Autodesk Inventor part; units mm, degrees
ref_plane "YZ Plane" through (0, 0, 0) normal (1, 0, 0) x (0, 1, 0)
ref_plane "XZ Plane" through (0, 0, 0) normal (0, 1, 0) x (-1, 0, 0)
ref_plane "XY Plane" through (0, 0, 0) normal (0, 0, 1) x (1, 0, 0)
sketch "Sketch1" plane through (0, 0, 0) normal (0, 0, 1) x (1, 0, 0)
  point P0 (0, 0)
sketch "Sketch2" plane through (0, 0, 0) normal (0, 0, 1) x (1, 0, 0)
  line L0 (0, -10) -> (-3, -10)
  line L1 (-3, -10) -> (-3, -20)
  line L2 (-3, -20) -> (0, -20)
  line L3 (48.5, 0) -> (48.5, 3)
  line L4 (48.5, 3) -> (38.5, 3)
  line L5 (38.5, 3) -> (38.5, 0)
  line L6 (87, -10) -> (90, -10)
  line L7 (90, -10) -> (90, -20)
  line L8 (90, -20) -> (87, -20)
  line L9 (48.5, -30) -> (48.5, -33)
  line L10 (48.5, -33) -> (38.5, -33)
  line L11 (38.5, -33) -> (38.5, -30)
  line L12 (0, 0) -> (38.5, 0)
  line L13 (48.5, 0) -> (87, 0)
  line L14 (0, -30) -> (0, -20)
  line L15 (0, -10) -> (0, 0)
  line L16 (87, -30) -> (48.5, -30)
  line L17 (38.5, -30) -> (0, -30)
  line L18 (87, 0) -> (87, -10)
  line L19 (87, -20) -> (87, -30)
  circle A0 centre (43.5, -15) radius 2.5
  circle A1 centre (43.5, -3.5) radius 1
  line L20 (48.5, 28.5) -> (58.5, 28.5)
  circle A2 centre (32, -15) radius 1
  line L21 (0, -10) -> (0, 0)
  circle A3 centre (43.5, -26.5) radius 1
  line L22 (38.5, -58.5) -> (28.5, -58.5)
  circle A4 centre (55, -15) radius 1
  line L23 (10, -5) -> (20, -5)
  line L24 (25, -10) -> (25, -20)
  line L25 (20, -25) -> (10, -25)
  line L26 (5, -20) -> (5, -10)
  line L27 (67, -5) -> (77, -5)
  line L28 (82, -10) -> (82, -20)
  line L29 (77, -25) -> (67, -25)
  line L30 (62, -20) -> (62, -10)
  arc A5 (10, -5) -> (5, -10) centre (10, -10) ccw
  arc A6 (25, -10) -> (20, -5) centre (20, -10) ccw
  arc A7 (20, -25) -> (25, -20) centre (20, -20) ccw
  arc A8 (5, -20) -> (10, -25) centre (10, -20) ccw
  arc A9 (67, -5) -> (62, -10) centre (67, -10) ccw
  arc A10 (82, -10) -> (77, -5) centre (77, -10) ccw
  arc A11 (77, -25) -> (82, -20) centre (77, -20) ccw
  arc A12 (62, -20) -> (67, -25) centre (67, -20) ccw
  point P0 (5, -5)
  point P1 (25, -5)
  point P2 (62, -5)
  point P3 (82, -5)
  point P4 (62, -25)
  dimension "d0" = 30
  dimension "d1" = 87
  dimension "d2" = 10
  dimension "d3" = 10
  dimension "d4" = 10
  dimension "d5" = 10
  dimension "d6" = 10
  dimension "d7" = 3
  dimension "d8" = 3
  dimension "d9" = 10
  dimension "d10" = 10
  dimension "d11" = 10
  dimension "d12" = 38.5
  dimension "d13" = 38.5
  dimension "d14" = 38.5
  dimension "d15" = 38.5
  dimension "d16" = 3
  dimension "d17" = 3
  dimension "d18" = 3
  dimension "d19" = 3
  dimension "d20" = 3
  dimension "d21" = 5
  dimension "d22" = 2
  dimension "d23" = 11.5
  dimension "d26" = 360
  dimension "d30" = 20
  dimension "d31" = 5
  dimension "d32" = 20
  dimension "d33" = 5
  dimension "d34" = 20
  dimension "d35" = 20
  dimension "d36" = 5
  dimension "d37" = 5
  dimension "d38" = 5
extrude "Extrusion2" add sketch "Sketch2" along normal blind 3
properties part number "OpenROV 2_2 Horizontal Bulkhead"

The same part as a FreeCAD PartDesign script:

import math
import FreeCAD as App
import Part
import Sketcher

V = App.Vector

doc = App.newDocument("Part")
params = doc.addObject("Spreadsheet::Sheet", "Params")
for row, (alias, value) in enumerate([
    ("sketch1_diameter", "2 mm"),
    ("sketch1_diameter2", "5 mm"),
    ("sketch1_radius", "5 mm"),
    ("sketch1_width", "3 mm"),
    ("sketch1_width2", "10 mm"),
    ("pad1_length", "3 mm"),
], start=1):
    params.set(f"A{row}", alias)
    params.set(f"B{row}", "=" + value)
    params.setAlias(f"B{row}", alias)

body = doc.addObject("PartDesign::Body", "Body")

# Sketch on XY plane
sketch1 = body.newObject("Sketcher::SketchObject", "Sketch")
sketch1.AttachmentSupport = (doc.getObject("XY_Plane"), [""])
sketch1.MapMode = "FlatFace"
sketch1.addGeometry(Part.LineSegment(V(0, 0, 0), V(0, -10, 0)), False)
sketch1.addGeometry(Part.LineSegment(V(0, -10, 0), V(-3, -10, 0)), False)
sketch1.addGeometry(Part.LineSegment(V(-3, -10, 0), V(-3, -20, 0)), False)
sketch1.addGeometry(Part.LineSegment(V(-3, -20, 0), V(0, -20, 0)), False)
sketch1.addGeometry(Part.LineSegment(V(0, -20, 0), V(0, -30, 0)), False)
sketch1.addGeometry(Part.LineSegment(V(0, -30, 0), V(38.5, -30, 0)), False)
sketch1.addGeometry(Part.LineSegment(V(38.5, -30, 0), V(38.5, -33, 0)), False)
sketch1.addGeometry(Part.LineSegment(V(38.5, -33, 0), V(48.5, -33, 0)), False)
sketch1.addGeometry(Part.LineSegment(V(48.5, -33, 0), V(48.5, -30, 0)), False)
sketch1.addGeometry(Part.LineSegment(V(48.5, -30, 0), V(87, -30, 0)), False)
sketch1.addGeometry(Part.LineSegment(V(87, -30, 0), V(87, -20, 0)), False)
sketch1.addGeometry(Part.LineSegment(V(87, -20, 0), V(90, -20, 0)), False)
sketch1.addGeometry(Part.LineSegment(V(90, -20, 0), V(90, -10, 0)), False)
sketch1.addGeometry(Part.LineSegment(V(90, -10, 0), V(87, -10, 0)), False)
sketch1.addGeometry(Part.LineSegment(V(87, -10, 0), V(87, 0, 0)), False)
sketch1.addGeometry(Part.LineSegment(V(87, 0, 0), V(48.5, 0, 0)), False)
sketch1.addGeometry(Part.LineSegment(V(48.5, 0, 0), V(48.5, 3, 0)), False)
sketch1.addGeometry(Part.LineSegment(V(48.5, 3, 0), V(38.5, 3, 0)), False)
sketch1.addGeometry(Part.LineSegment(V(38.5, 3, 0), V(38.5, 0, 0)), False)
sketch1.addGeometry(Part.LineSegment(V(38.5, 0, 0), V(0, 0, 0)), False)
sketch1.addGeometry(Part.Circle(V(43.5, -26.5, 0), V(0, 0, 1), 1), False)
sketch1.addGeometry(Part.ArcOfCircle(Part.Circle(V(10, -10, 0), V(0, 0, 1), 5), math.radians(90), math.radians(180)), False)
sketch1.addGeometry(Part.LineSegment(V(10, -5, 0), V(20, -5, 0)), False)
sketch1.addGeometry(Part.ArcOfCircle(Part.Circle(V(20, -10, 0), V(0, 0, 1), 5), math.radians(0), math.radians(90)), False)
sketch1.addGeometry(Part.LineSegment(V(25, -10, 0), V(25, -20, 0)), False)
sketch1.addGeometry(Part.ArcOfCircle(Part.Circle(V(20, -20, 0), V(0, 0, 1), 5), math.radians(-90), math.radians(0)), False)
sketch1.addGeometry(Part.LineSegment(V(20, -25, 0), V(10, -25, 0)), False)
sketch1.addGeometry(Part.ArcOfCircle(Part.Circle(V(10, -20, 0), V(0, 0, 1), 5), math.radians(180), math.radians(270)), False)
sketch1.addGeometry(Part.LineSegment(V(5, -20, 0), V(5, -10, 0)), False)
sketch1.addGeometry(Part.Circle(V(32, -15, 0), V(0, 0, 1), 1), False)
sketch1.addGeometry(Part.Circle(V(43.5, -15, 0), V(0, 0, 1), 2.5), False)
sketch1.addGeometry(Part.Circle(V(55, -15, 0), V(0, 0, 1), 1), False)
sketch1.addGeometry(Part.ArcOfCircle(Part.Circle(V(67, -10, 0), V(0, 0, 1), 5), math.radians(90), math.radians(180)), False)
sketch1.addGeometry(Part.LineSegment(V(67, -5, 0), V(77, -5, 0)), False)
sketch1.addGeometry(Part.ArcOfCircle(Part.Circle(V(77, -10, 0), V(0, 0, 1), 5), math.radians(0), math.radians(90)), False)
sketch1.addGeometry(Part.LineSegment(V(82, -10, 0), V(82, -20, 0)), False)
sketch1.addGeometry(Part.ArcOfCircle(Part.Circle(V(77, -20, 0), V(0, 0, 1), 5), math.radians(-90), math.radians(0)), False)
sketch1.addGeometry(Part.LineSegment(V(77, -25, 0), V(67, -25, 0)), False)
sketch1.addGeometry(Part.ArcOfCircle(Part.Circle(V(67, -20, 0), V(0, 0, 1), 5), math.radians(180), math.radians(270)), False)
sketch1.addGeometry(Part.LineSegment(V(62, -20, 0), V(62, -10, 0)), False)
sketch1.addGeometry(Part.Circle(V(43.5, -3.5, 0), V(0, 0, 1), 1), False)
sketch1.addConstraint(Sketcher.Constraint("Coincident", 0, 2, 1, 1))
sketch1.addConstraint(Sketcher.Constraint("Coincident", 1, 2, 2, 1))
sketch1.addConstraint(Sketcher.Constraint("Coincident", 2, 2, 3, 1))
sketch1.addConstraint(Sketcher.Constraint("Coincident", 3, 2, 4, 1))
sketch1.addConstraint(Sketcher.Constraint("Coincident", 4, 2, 5, 1))
sketch1.addConstraint(Sketcher.Constraint("Coincident", 5, 2, 6, 1))
sketch1.addConstraint(Sketcher.Constraint("Coincident", 6, 2, 7, 1))
sketch1.addConstraint(Sketcher.Constraint("Coincident", 7, 2, 8, 1))
sketch1.addConstraint(Sketcher.Constraint("Coincident", 8, 2, 9, 1))
sketch1.addConstraint(Sketcher.Constraint("Coincident", 9, 2, 10, 1))
sketch1.addConstraint(Sketcher.Constraint("Coincident", 10, 2, 11, 1))
sketch1.addConstraint(Sketcher.Constraint("Coincident", 11, 2, 12, 1))
sketch1.addConstraint(Sketcher.Constraint("Coincident", 12, 2, 13, 1))
sketch1.addConstraint(Sketcher.Constraint("Coincident", 13, 2, 14, 1))
sketch1.addConstraint(Sketcher.Constraint("Coincident", 14, 2, 15, 1))
sketch1.addConstraint(Sketcher.Constraint("Coincident", 15, 2, 16, 1))
sketch1.addConstraint(Sketcher.Constraint("Coincident", 16, 2, 17, 1))
sketch1.addConstraint(Sketcher.Constraint("Coincident", 17, 2, 18, 1))
sketch1.addConstraint(Sketcher.Constraint("Coincident", 18, 2, 19, 1))
sketch1.addConstraint(Sketcher.Constraint("Coincident", 19, 2, 0, 1))
sketch1.addConstraint(Sketcher.Constraint("Tangent", 21, 1, 22, 1))
sketch1.addConstraint(Sketcher.Constraint("Tangent", 22, 2, 23, 2))
sketch1.addConstraint(Sketcher.Constraint("Tangent", 23, 1, 24, 1))
sketch1.addConstraint(Sketcher.Constraint("Tangent", 24, 2, 25, 2))
sketch1.addConstraint(Sketcher.Constraint("Tangent", 25, 1, 26, 1))
sketch1.addConstraint(Sketcher.Constraint("Tangent", 26, 2, 27, 2))
sketch1.addConstraint(Sketcher.Constraint("Tangent", 27, 1, 28, 1))
sketch1.addConstraint(Sketcher.Constraint("Tangent", 28, 2, 21, 2))
sketch1.addConstraint(Sketcher.Constraint("Tangent", 32, 1, 33, 1))
sketch1.addConstraint(Sketcher.Constraint("Tangent", 33, 2, 34, 2))
sketch1.addConstraint(Sketcher.Constraint("Tangent", 34, 1, 35, 1))
sketch1.addConstraint(Sketcher.Constraint("Tangent", 35, 2, 36, 2))
sketch1.addConstraint(Sketcher.Constraint("Tangent", 36, 1, 37, 1))
sketch1.addConstraint(Sketcher.Constraint("Tangent", 37, 2, 38, 2))
sketch1.addConstraint(Sketcher.Constraint("Tangent", 38, 1, 39, 1))
sketch1.addConstraint(Sketcher.Constraint("Tangent", 39, 2, 32, 2))
sketch1.addConstraint(Sketcher.Constraint("Vertical", 0))
sketch1.addConstraint(Sketcher.Constraint("Horizontal", 1))
sketch1.addConstraint(Sketcher.Constraint("Vertical", 2))
sketch1.addConstraint(Sketcher.Constraint("Horizontal", 3))
sketch1.addConstraint(Sketcher.Constraint("Vertical", 4))
sketch1.addConstraint(Sketcher.Constraint("Horizontal", 5))
sketch1.addConstraint(Sketcher.Constraint("Vertical", 6))
sketch1.addConstraint(Sketcher.Constraint("Horizontal", 7))
sketch1.addConstraint(Sketcher.Constraint("Vertical", 8))
sketch1.addConstraint(Sketcher.Constraint("Horizontal", 9))
sketch1.addConstraint(Sketcher.Constraint("Vertical", 10))
sketch1.addConstraint(Sketcher.Constraint("Horizontal", 11))
sketch1.addConstraint(Sketcher.Constraint("Vertical", 12))
sketch1.addConstraint(Sketcher.Constraint("Horizontal", 13))
sketch1.addConstraint(Sketcher.Constraint("Vertical", 14))
sketch1.addConstraint(Sketcher.Constraint("Horizontal", 15))
sketch1.addConstraint(Sketcher.Constraint("Vertical", 16))
sketch1.addConstraint(Sketcher.Constraint("Horizontal", 17))
sketch1.addConstraint(Sketcher.Constraint("Vertical", 18))
sketch1.addConstraint(Sketcher.Constraint("Horizontal", 19))
sketch1.addConstraint(Sketcher.Constraint("Horizontal", 22))
sketch1.addConstraint(Sketcher.Constraint("Vertical", 24))
sketch1.addConstraint(Sketcher.Constraint("Horizontal", 26))
sketch1.addConstraint(Sketcher.Constraint("Vertical", 28))
sketch1.addConstraint(Sketcher.Constraint("Horizontal", 33))
sketch1.addConstraint(Sketcher.Constraint("Vertical", 35))
sketch1.addConstraint(Sketcher.Constraint("Horizontal", 37))
sketch1.addConstraint(Sketcher.Constraint("Vertical", 39))
sketch1.addConstraint(Sketcher.Constraint("Coincident", 19, 2, -1, 1))
sketch1.addConstraint(Sketcher.Constraint("Equal", 21, 23))
sketch1.addConstraint(Sketcher.Constraint("Equal", 23, 25))
sketch1.addConstraint(Sketcher.Constraint("Equal", 25, 27))
sketch1.addConstraint(Sketcher.Constraint("Equal", 20, 29))
sketch1.addConstraint(Sketcher.Constraint("Equal", 29, 31))
sketch1.addConstraint(Sketcher.Constraint("Equal", 27, 32))
sketch1.addConstraint(Sketcher.Constraint("Equal", 32, 34))
sketch1.addConstraint(Sketcher.Constraint("Equal", 34, 36))
sketch1.addConstraint(Sketcher.Constraint("Equal", 36, 38))
sketch1.addConstraint(Sketcher.Constraint("Equal", 31, 40))
sketch1.addConstraint(Sketcher.Constraint("PointOnObject", 3, 2, -2))
sketch1.addConstraint(Sketcher.Constraint("PointOnObject", 14, 2, -1))
sketch1.addConstraint(Sketcher.Constraint("Horizontal", 29, 3, 30, 3))
sketch1.addConstraint(Sketcher.Constraint("Horizontal", 30, 3, 31, 3))
sketch1.addConstraint(Sketcher.Constraint("Horizontal", 23, 3, 32, 3))
sketch1.addConstraint(Sketcher.Constraint("Horizontal", 27, 3, 36, 3))
sketch1.addConstraint(Sketcher.Constraint("Horizontal", 34, 3, 0, 2))
sketch1.addConstraint(Sketcher.Constraint("Horizontal", 38, 3, 2, 2))
sketch1.addConstraint(Sketcher.Constraint("Horizontal", 5, 2, 8, 2))
sketch1.addConstraint(Sketcher.Constraint("Horizontal", 3, 2, 10, 2))
sketch1.addConstraint(Sketcher.Constraint("Horizontal", 1, 2, 12, 2))
sketch1.addConstraint(Sketcher.Constraint("Vertical", 20, 3, 30, 3))
sketch1.addConstraint(Sketcher.Constraint("Vertical", 30, 3, 40, 3))
sketch1.addConstraint(Sketcher.Constraint("Vertical", 10, 2, 13, 2))
sketch1.addConstraint(Sketcher.Constraint("Vertical", 8, 2, 15, 2))
sketch1.addConstraint(Sketcher.Constraint("Vertical", 6, 2, 17, 2))
sketch1.addConstraint(Sketcher.Constraint("Equal", 5, 9))
sketch1.addConstraint(Sketcher.Constraint("Equal", 3, 11))
sketch1.addConstraint(Sketcher.Constraint("Equal", 17, 22))
sketch1.addConstraint(Sketcher.Constraint("Equal", 26, 33))
sketch1.addConstraint(Sketcher.Constraint("Equal", 37, 0))
sketch1.addConstraint(Sketcher.Constraint("Equal", 0, 2))
sketch1.addConstraint(Sketcher.Constraint("Equal", 2, 4))
sketch1.addConstraint(Sketcher.Constraint("Equal", 13, 6))
sketch1.addConstraint(Sketcher.Constraint("Equal", 8, 16))
sketch1.addConstraint(Sketcher.Constraint("Diameter", 20, 2.0))
sketch1.addConstraint(Sketcher.Constraint("Diameter", 30, 5.0))
sketch1.addConstraint(Sketcher.Constraint("Radius", 21, 5.0))
sketch1.addConstraint(Sketcher.Constraint("DistanceX", 1, 2, 1, 1, 3.0))
sketch1.addConstraint(Sketcher.Constraint("DistanceX", 7, 1, 7, 2, 10.0))
sketch1.addConstraint(Sketcher.Constraint("DistanceX", 5, 1, 5, 2, 38.5))
sketch1.addConstraint(Sketcher.Constraint("DistanceX", -1, 1, 21, 3, 10.0))
sketch1.addConstraint(Sketcher.Constraint("DistanceY", 29, 3, 23, 3, 5.0))
sketch1.addConstraint(Sketcher.Constraint("DistanceX", 5, 2, 20, 3, 5.0))
sketch1.addConstraint(Sketcher.Constraint("DistanceX", 36, 3, 9, 2, 10.0))
sketch1.addConstraint(Sketcher.Constraint("DistanceX", 29, 3, 20, 3, 11.5))
sketch1.addConstraint(Sketcher.Constraint("DistanceY", 20, 3, 29, 3, 11.5))
sketch1.addConstraint(Sketcher.Constraint("DistanceX", 30, 3, 31, 3, 11.5))
sketch1.addConstraint(Sketcher.Constraint("DistanceY", 30, 3, 40, 3, 11.5))
sketch1.setExpression("Constraints[100]", "Params.sketch1_diameter")
sketch1.setExpression("Constraints[101]", "Params.sketch1_diameter2")
sketch1.setExpression("Constraints[102]", "Params.sketch1_radius")
sketch1.setExpression("Constraints[103]", "Params.sketch1_width")
sketch1.setExpression("Constraints[104]", "Params.sketch1_width2")
pad1 = body.newObject("PartDesign::Pad", "Pad")
pad1.Profile = sketch1
pad1.setExpression("Length", "Params.pad1_length")

doc.recompute()
